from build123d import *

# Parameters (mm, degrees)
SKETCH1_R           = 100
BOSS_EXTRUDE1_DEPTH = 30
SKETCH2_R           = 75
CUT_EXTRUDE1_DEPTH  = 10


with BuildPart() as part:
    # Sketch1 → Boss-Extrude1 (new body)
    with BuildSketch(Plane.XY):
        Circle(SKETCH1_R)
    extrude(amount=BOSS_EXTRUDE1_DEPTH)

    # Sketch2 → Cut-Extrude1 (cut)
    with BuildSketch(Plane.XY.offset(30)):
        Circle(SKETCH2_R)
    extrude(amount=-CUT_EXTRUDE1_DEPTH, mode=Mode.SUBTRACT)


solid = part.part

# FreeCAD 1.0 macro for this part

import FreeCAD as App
import Part
import Sketcher
from FreeCAD import Vector

doc = App.newDocument("Part")
params = doc.addObject("Spreadsheet::Sheet", "Params")
for row, (alias, value) in enumerate([
    ("sketch1_diameter", "200 mm"),
    ("pad1_length", "30 mm"),
    ("sketch2_diameter", "150 mm"),
    ("pocket1_length", "10 mm"),
], start=1):
    params.set(f"A{row}", alias)
    params.set(f"B{row}", "=" + value)
    params.setAlias(f"B{row}", alias)

body = doc.addObject("PartDesign::Body", "Body")

sketch1 = body.newObject("Sketcher::SketchObject", "Sketch")
sketch1.AttachmentSupport = (doc.getObject("XY_Plane"), [""])
sketch1.MapMode = "FlatFace"
sketch1.addGeometry(Part.Circle(Vector(0, 0, 0), Vector(0, 0, 1), 100), False)
sketch1.addConstraint([
    Sketcher.Constraint("Coincident", 0, 3, -1, 1),
    Sketcher.Constraint("Diameter", 0, 200.0),
])
sketch1.setExpression("Constraints[1]", "Params.sketch1_diameter")
pad1 = body.newObject("PartDesign::Pad", "Pad")
pad1.Profile = sketch1
pad1.setExpression("Length", "Params.pad1_length")

sketch2 = body.newObject("Sketcher::SketchObject", "Sketch001")
sketch2.AttachmentSupport = (doc.getObject("XY_Plane"), [""])
sketch2.MapMode = "FlatFace"
sketch2.AttachmentOffset = App.Placement(Vector(0, 0, 30), App.Rotation())
sketch2.addGeometry(Part.Circle(Vector(0, 0, 0), Vector(0, 0, 1), 75), False)
sketch2.addConstraint([
    Sketcher.Constraint("Coincident", 0, 3, -1, 1),
    Sketcher.Constraint("Diameter", 0, 150.0),
])
sketch2.setExpression("Constraints[1]", "Params.sketch2_diameter")
pocket1 = body.newObject("PartDesign::Pocket", "Pocket")
pocket1.Profile = sketch2
pocket1.setExpression("Length", "Params.pocket1_length")

doc.recompute()
